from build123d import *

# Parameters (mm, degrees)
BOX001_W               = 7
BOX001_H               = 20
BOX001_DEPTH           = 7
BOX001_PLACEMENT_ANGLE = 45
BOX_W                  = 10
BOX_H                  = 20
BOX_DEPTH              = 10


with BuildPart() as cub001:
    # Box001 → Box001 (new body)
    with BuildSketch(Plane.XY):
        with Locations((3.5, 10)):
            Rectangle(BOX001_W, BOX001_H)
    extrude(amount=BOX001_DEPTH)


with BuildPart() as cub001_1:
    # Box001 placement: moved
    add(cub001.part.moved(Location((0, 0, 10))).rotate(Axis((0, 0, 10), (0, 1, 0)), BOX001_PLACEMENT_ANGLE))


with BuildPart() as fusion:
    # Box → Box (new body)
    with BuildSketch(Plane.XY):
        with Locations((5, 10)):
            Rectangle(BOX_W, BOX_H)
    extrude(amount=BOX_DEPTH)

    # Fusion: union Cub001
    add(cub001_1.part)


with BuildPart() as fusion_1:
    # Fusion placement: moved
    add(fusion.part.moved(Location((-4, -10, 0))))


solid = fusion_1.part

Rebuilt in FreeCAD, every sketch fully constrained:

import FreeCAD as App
import Part
import Sketcher
from FreeCAD import Vector
Q = App.Units.Quantity

doc = App.newDocument("Part")
body = doc.addObject("PartDesign::Body", "Body")

# Sketch on XY plane
sketch1 = body.newObject("Sketcher::SketchObject", "Sketch")
sketch1.AttachmentSupport = (doc.getObject("XY_Plane"), [""])
sketch1.MapMode = "FlatFace"
sketch1.addGeometry([
    Part.LineSegment(Vector(0, 20, 0), Vector(0, 0, 0)),
    Part.LineSegment(Vector(0, 0, 0), Vector(7, 0, 0)),
    Part.LineSegment(Vector(7, 0, 0), Vector(7, 20, 0)),
    Part.LineSegment(Vector(7, 20, 0), Vector(0, 20, 0)),
], False)
sketch1.addConstraint([
    Sketcher.Constraint("Coincident", 0, 2, 1, 1),
    Sketcher.Constraint("Coincident", 1, 2, 2, 1),
    Sketcher.Constraint("Coincident", 2, 2, 3, 1),
    Sketcher.Constraint("Coincident", 3, 2, 0, 1),
    Sketcher.Constraint("Vertical", 0),
    Sketcher.Constraint("Horizontal", 1),
    Sketcher.Constraint("Vertical", 2),
    Sketcher.Constraint("Horizontal", 3),
    Sketcher.Constraint("Coincident", 0, 2, -1, 1),
    Sketcher.Constraint("DistanceX", 1, 1, 1, 2, Q("7 mm")),
    Sketcher.Constraint("DistanceY", 0, 2, 0, 1, Q("20 mm")),
])
pad1 = body.newObject("PartDesign::Pad", "Pad")
pad1.Profile = sketch1
pad1.Length = 7
body2 = doc.addObject("PartDesign::Body", "Body001")
doc.recompute()

body.Placement = App.Placement(Vector(0, 0, 10), App.Rotation(Vector(0, 1, 0), 45))
boolean = body2.newObject("PartDesign::Boolean", "Boolean")
boolean.Type = "Fuse"
boolean.addObjects([body])
body3 = doc.addObject("PartDesign::Body", "Body002")

# Sketch on XY plane
sketch2 = body3.newObject("Sketcher::SketchObject", "Sketch001")
sketch2.AttachmentSupport = (doc.getObject("XY_Plane002"), [""])
sketch2.MapMode = "FlatFace"
sketch2.addGeometry([
    Part.LineSegment(Vector(0, 20, 0), Vector(0, 0, 0)),
    Part.LineSegment(Vector(0, 0, 0), Vector(10, 0, 0)),
    Part.LineSegment(Vector(10, 0, 0), Vector(10, 20, 0)),
    Part.LineSegment(Vector(10, 20, 0), Vector(0, 20, 0)),
], False)
sketch2.addConstraint([
    Sketcher.Constraint("Coincident", 0, 2, 1, 1),
    Sketcher.Constraint("Coincident", 1, 2, 2, 1),
    Sketcher.Constraint("Coincident", 2, 2, 3, 1),
    Sketcher.Constraint("Coincident", 3, 2, 0, 1),
    Sketcher.Constraint("Vertical", 0),
    Sketcher.Constraint("Horizontal", 1),
    Sketcher.Constraint("Vertical", 2),
    Sketcher.Constraint("Horizontal", 3),
    Sketcher.Constraint("Coincident", 0, 2, -1, 1),
    Sketcher.Constraint("DistanceX", 1, 1, 1, 2, Q("10 mm")),
    Sketcher.Constraint("DistanceY", 0, 2, 0, 1, Q("20 mm")),
])
pad2 = body3.newObject("PartDesign::Pad", "Pad001")
pad2.Profile = sketch2
pad2.Length = 10
doc.recompute()

boolean2 = body3.newObject("PartDesign::Boolean", "Boolean001")
boolean2.Type = "Fuse"
boolean2.addObjects([body2])
body4 = doc.addObject("PartDesign::Body", "Body003")
doc.recompute()

body3.Placement = App.Placement(Vector(-4, -10, 0), App.Rotation(Vector(0, 0, 1), 0))
boolean3 = body4.newObject("PartDesign::Boolean", "Boolean002")
boolean3.Type = "Fuse"
boolean3.addObjects([body3])

doc.recompute()
